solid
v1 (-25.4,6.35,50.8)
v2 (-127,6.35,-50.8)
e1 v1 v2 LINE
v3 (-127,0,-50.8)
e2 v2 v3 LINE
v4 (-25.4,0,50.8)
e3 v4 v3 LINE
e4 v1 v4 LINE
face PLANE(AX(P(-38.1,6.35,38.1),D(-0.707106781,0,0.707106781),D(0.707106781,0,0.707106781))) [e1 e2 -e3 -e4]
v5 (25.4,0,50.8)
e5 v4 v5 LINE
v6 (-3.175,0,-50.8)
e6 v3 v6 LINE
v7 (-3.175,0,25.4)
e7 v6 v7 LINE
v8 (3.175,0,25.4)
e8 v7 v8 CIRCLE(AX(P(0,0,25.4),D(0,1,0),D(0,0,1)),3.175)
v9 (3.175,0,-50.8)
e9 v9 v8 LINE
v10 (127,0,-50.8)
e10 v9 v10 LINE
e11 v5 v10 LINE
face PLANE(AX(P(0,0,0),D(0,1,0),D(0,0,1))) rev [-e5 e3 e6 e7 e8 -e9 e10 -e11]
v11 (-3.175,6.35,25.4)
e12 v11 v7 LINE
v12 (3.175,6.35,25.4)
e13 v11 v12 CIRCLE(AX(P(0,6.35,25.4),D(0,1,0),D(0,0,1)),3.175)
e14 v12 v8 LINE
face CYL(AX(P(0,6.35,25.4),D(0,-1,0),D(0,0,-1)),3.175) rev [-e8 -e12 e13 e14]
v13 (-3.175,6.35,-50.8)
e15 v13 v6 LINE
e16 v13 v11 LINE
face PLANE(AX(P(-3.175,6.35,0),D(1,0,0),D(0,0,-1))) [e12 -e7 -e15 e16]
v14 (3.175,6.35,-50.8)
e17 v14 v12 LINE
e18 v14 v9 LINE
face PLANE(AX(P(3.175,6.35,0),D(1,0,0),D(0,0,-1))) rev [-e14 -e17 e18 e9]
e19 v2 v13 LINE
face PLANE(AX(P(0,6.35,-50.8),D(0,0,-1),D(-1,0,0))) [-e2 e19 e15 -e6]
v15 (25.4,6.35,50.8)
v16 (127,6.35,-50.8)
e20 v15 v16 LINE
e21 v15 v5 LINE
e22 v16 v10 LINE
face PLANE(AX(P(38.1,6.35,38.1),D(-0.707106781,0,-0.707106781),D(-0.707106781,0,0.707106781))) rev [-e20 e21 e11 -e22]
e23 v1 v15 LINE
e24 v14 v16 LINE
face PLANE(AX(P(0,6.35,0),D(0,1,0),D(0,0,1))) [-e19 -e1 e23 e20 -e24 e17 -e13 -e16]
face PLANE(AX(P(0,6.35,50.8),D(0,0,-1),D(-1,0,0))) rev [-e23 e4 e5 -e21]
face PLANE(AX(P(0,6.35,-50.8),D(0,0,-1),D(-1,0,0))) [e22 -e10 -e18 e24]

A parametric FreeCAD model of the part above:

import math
import FreeCAD as App
import Part
import Sketcher
from FreeCAD import Vector
Q = App.Units.Quantity

doc = App.newDocument("Part")
params = doc.addObject("Spreadsheet::Sheet", "Params")
for row, (alias, value) in enumerate([
    ("sketch1_width", "2 in"),
    ("sketch1_height", "3 in"),
    ("sketch1_radius", "0.125 in"),
    ("pad1_length", "0.25 in"),
], start=1):
    params.set(f"A{row}", alias)
    params.set(f"B{row}", "=" + value)
    params.setAlias(f"B{row}", alias)

body = doc.addObject("PartDesign::Body", "Body")

# Sketch on XZ plane
sketch1 = body.newObject("Sketcher::SketchObject", "Sketch")
sketch1.AttachmentSupport = (doc.getObject("XZ_Plane"), [""])
sketch1.MapMode = "FlatFace"
sketch1.addGeometry([
    Part.LineSegment(Vector(-3.2, -50.8, 0), Vector(-127, -50.8, 0)),  # 0
    Part.LineSegment(Vector(-127, -50.8, 0), Vector(-25.4, 50.8, 0)),  # 1
    Part.LineSegment(Vector(-25.4, 50.8, 0), Vector(25.4, 50.8, 0)),  # 2
    Part.LineSegment(Vector(25.4, 50.8, 0), Vector(127, -50.8, 0)),  # 3
    Part.LineSegment(Vector(127, -50.8, 0), Vector(3.2, -50.8, 0)),  # 4
    Part.LineSegment(Vector(3.2, -50.8, 0), Vector(3.2, 25.4, 0)),  # 5
    Part.ArcOfCircle(Part.Circle(Vector(0, 25.4, 0), Vector(0, 0, 1), 3.2), math.radians(0), math.radians(180)),  # 6
    Part.LineSegment(Vector(-3.2, 25.4, 0), Vector(-3.2, -50.8, 0)),  # 7
], False)
sketch1.addConstraint([
    Sketcher.Constraint("Coincident", 0, 2, 1, 1),
    Sketcher.Constraint("Coincident", 1, 2, 2, 1),
    Sketcher.Constraint("Coincident", 2, 2, 3, 1),
    Sketcher.Constraint("Coincident", 3, 2, 4, 1),
    Sketcher.Constraint("Coincident", 4, 2, 5, 1),
    Sketcher.Constraint("Tangent", 5, 2, 6, 1),
    Sketcher.Constraint("Tangent", 6, 2, 7, 1),
    Sketcher.Constraint("Coincident", 7, 2, 0, 1),
    Sketcher.Constraint("Horizontal", 0),
    Sketcher.Constraint("Horizontal", 2),
    Sketcher.Constraint("Horizontal", 4),
    Sketcher.Constraint("Vertical", 5),
    Sketcher.Constraint("Vertical", 7),
    Sketcher.Constraint("Symmetric", 0, 2, 3, 2, -2),
    Sketcher.Constraint("PointOnObject", 6, 3, -2),
    Sketcher.Constraint("Perpendicular", 1, 3),
    Sketcher.Constraint("Equal", 1, 3),
    Sketcher.Constraint("DistanceX", 2, 1, 2, 2, Q("2 in")),
    Sketcher.Constraint("DistanceY", 5, 1, 5, 2, Q("3 in")),
    Sketcher.Constraint("DistanceY", -1, 1, 6, 3, Q("1 in")),
    Sketcher.Constraint("DistanceX", 0, 2, -1, 1, Q("5 in")),
    Sketcher.Constraint("Radius", 6, Q("0.125 in")),
])
sketch1.setExpression("Constraints[17]", "Params.sketch1_width")
sketch1.setExpression("Constraints[18]", "Params.sketch1_height")
sketch1.setExpression("Constraints[21]", "Params.sketch1_radius")
pad1 = body.newObject("PartDesign::Pad", "Pad")
pad1.Profile = sketch1
pad1.setExpression("Length", "Params.pad1_length")
pad1.Reversed = True

doc.recompute()
